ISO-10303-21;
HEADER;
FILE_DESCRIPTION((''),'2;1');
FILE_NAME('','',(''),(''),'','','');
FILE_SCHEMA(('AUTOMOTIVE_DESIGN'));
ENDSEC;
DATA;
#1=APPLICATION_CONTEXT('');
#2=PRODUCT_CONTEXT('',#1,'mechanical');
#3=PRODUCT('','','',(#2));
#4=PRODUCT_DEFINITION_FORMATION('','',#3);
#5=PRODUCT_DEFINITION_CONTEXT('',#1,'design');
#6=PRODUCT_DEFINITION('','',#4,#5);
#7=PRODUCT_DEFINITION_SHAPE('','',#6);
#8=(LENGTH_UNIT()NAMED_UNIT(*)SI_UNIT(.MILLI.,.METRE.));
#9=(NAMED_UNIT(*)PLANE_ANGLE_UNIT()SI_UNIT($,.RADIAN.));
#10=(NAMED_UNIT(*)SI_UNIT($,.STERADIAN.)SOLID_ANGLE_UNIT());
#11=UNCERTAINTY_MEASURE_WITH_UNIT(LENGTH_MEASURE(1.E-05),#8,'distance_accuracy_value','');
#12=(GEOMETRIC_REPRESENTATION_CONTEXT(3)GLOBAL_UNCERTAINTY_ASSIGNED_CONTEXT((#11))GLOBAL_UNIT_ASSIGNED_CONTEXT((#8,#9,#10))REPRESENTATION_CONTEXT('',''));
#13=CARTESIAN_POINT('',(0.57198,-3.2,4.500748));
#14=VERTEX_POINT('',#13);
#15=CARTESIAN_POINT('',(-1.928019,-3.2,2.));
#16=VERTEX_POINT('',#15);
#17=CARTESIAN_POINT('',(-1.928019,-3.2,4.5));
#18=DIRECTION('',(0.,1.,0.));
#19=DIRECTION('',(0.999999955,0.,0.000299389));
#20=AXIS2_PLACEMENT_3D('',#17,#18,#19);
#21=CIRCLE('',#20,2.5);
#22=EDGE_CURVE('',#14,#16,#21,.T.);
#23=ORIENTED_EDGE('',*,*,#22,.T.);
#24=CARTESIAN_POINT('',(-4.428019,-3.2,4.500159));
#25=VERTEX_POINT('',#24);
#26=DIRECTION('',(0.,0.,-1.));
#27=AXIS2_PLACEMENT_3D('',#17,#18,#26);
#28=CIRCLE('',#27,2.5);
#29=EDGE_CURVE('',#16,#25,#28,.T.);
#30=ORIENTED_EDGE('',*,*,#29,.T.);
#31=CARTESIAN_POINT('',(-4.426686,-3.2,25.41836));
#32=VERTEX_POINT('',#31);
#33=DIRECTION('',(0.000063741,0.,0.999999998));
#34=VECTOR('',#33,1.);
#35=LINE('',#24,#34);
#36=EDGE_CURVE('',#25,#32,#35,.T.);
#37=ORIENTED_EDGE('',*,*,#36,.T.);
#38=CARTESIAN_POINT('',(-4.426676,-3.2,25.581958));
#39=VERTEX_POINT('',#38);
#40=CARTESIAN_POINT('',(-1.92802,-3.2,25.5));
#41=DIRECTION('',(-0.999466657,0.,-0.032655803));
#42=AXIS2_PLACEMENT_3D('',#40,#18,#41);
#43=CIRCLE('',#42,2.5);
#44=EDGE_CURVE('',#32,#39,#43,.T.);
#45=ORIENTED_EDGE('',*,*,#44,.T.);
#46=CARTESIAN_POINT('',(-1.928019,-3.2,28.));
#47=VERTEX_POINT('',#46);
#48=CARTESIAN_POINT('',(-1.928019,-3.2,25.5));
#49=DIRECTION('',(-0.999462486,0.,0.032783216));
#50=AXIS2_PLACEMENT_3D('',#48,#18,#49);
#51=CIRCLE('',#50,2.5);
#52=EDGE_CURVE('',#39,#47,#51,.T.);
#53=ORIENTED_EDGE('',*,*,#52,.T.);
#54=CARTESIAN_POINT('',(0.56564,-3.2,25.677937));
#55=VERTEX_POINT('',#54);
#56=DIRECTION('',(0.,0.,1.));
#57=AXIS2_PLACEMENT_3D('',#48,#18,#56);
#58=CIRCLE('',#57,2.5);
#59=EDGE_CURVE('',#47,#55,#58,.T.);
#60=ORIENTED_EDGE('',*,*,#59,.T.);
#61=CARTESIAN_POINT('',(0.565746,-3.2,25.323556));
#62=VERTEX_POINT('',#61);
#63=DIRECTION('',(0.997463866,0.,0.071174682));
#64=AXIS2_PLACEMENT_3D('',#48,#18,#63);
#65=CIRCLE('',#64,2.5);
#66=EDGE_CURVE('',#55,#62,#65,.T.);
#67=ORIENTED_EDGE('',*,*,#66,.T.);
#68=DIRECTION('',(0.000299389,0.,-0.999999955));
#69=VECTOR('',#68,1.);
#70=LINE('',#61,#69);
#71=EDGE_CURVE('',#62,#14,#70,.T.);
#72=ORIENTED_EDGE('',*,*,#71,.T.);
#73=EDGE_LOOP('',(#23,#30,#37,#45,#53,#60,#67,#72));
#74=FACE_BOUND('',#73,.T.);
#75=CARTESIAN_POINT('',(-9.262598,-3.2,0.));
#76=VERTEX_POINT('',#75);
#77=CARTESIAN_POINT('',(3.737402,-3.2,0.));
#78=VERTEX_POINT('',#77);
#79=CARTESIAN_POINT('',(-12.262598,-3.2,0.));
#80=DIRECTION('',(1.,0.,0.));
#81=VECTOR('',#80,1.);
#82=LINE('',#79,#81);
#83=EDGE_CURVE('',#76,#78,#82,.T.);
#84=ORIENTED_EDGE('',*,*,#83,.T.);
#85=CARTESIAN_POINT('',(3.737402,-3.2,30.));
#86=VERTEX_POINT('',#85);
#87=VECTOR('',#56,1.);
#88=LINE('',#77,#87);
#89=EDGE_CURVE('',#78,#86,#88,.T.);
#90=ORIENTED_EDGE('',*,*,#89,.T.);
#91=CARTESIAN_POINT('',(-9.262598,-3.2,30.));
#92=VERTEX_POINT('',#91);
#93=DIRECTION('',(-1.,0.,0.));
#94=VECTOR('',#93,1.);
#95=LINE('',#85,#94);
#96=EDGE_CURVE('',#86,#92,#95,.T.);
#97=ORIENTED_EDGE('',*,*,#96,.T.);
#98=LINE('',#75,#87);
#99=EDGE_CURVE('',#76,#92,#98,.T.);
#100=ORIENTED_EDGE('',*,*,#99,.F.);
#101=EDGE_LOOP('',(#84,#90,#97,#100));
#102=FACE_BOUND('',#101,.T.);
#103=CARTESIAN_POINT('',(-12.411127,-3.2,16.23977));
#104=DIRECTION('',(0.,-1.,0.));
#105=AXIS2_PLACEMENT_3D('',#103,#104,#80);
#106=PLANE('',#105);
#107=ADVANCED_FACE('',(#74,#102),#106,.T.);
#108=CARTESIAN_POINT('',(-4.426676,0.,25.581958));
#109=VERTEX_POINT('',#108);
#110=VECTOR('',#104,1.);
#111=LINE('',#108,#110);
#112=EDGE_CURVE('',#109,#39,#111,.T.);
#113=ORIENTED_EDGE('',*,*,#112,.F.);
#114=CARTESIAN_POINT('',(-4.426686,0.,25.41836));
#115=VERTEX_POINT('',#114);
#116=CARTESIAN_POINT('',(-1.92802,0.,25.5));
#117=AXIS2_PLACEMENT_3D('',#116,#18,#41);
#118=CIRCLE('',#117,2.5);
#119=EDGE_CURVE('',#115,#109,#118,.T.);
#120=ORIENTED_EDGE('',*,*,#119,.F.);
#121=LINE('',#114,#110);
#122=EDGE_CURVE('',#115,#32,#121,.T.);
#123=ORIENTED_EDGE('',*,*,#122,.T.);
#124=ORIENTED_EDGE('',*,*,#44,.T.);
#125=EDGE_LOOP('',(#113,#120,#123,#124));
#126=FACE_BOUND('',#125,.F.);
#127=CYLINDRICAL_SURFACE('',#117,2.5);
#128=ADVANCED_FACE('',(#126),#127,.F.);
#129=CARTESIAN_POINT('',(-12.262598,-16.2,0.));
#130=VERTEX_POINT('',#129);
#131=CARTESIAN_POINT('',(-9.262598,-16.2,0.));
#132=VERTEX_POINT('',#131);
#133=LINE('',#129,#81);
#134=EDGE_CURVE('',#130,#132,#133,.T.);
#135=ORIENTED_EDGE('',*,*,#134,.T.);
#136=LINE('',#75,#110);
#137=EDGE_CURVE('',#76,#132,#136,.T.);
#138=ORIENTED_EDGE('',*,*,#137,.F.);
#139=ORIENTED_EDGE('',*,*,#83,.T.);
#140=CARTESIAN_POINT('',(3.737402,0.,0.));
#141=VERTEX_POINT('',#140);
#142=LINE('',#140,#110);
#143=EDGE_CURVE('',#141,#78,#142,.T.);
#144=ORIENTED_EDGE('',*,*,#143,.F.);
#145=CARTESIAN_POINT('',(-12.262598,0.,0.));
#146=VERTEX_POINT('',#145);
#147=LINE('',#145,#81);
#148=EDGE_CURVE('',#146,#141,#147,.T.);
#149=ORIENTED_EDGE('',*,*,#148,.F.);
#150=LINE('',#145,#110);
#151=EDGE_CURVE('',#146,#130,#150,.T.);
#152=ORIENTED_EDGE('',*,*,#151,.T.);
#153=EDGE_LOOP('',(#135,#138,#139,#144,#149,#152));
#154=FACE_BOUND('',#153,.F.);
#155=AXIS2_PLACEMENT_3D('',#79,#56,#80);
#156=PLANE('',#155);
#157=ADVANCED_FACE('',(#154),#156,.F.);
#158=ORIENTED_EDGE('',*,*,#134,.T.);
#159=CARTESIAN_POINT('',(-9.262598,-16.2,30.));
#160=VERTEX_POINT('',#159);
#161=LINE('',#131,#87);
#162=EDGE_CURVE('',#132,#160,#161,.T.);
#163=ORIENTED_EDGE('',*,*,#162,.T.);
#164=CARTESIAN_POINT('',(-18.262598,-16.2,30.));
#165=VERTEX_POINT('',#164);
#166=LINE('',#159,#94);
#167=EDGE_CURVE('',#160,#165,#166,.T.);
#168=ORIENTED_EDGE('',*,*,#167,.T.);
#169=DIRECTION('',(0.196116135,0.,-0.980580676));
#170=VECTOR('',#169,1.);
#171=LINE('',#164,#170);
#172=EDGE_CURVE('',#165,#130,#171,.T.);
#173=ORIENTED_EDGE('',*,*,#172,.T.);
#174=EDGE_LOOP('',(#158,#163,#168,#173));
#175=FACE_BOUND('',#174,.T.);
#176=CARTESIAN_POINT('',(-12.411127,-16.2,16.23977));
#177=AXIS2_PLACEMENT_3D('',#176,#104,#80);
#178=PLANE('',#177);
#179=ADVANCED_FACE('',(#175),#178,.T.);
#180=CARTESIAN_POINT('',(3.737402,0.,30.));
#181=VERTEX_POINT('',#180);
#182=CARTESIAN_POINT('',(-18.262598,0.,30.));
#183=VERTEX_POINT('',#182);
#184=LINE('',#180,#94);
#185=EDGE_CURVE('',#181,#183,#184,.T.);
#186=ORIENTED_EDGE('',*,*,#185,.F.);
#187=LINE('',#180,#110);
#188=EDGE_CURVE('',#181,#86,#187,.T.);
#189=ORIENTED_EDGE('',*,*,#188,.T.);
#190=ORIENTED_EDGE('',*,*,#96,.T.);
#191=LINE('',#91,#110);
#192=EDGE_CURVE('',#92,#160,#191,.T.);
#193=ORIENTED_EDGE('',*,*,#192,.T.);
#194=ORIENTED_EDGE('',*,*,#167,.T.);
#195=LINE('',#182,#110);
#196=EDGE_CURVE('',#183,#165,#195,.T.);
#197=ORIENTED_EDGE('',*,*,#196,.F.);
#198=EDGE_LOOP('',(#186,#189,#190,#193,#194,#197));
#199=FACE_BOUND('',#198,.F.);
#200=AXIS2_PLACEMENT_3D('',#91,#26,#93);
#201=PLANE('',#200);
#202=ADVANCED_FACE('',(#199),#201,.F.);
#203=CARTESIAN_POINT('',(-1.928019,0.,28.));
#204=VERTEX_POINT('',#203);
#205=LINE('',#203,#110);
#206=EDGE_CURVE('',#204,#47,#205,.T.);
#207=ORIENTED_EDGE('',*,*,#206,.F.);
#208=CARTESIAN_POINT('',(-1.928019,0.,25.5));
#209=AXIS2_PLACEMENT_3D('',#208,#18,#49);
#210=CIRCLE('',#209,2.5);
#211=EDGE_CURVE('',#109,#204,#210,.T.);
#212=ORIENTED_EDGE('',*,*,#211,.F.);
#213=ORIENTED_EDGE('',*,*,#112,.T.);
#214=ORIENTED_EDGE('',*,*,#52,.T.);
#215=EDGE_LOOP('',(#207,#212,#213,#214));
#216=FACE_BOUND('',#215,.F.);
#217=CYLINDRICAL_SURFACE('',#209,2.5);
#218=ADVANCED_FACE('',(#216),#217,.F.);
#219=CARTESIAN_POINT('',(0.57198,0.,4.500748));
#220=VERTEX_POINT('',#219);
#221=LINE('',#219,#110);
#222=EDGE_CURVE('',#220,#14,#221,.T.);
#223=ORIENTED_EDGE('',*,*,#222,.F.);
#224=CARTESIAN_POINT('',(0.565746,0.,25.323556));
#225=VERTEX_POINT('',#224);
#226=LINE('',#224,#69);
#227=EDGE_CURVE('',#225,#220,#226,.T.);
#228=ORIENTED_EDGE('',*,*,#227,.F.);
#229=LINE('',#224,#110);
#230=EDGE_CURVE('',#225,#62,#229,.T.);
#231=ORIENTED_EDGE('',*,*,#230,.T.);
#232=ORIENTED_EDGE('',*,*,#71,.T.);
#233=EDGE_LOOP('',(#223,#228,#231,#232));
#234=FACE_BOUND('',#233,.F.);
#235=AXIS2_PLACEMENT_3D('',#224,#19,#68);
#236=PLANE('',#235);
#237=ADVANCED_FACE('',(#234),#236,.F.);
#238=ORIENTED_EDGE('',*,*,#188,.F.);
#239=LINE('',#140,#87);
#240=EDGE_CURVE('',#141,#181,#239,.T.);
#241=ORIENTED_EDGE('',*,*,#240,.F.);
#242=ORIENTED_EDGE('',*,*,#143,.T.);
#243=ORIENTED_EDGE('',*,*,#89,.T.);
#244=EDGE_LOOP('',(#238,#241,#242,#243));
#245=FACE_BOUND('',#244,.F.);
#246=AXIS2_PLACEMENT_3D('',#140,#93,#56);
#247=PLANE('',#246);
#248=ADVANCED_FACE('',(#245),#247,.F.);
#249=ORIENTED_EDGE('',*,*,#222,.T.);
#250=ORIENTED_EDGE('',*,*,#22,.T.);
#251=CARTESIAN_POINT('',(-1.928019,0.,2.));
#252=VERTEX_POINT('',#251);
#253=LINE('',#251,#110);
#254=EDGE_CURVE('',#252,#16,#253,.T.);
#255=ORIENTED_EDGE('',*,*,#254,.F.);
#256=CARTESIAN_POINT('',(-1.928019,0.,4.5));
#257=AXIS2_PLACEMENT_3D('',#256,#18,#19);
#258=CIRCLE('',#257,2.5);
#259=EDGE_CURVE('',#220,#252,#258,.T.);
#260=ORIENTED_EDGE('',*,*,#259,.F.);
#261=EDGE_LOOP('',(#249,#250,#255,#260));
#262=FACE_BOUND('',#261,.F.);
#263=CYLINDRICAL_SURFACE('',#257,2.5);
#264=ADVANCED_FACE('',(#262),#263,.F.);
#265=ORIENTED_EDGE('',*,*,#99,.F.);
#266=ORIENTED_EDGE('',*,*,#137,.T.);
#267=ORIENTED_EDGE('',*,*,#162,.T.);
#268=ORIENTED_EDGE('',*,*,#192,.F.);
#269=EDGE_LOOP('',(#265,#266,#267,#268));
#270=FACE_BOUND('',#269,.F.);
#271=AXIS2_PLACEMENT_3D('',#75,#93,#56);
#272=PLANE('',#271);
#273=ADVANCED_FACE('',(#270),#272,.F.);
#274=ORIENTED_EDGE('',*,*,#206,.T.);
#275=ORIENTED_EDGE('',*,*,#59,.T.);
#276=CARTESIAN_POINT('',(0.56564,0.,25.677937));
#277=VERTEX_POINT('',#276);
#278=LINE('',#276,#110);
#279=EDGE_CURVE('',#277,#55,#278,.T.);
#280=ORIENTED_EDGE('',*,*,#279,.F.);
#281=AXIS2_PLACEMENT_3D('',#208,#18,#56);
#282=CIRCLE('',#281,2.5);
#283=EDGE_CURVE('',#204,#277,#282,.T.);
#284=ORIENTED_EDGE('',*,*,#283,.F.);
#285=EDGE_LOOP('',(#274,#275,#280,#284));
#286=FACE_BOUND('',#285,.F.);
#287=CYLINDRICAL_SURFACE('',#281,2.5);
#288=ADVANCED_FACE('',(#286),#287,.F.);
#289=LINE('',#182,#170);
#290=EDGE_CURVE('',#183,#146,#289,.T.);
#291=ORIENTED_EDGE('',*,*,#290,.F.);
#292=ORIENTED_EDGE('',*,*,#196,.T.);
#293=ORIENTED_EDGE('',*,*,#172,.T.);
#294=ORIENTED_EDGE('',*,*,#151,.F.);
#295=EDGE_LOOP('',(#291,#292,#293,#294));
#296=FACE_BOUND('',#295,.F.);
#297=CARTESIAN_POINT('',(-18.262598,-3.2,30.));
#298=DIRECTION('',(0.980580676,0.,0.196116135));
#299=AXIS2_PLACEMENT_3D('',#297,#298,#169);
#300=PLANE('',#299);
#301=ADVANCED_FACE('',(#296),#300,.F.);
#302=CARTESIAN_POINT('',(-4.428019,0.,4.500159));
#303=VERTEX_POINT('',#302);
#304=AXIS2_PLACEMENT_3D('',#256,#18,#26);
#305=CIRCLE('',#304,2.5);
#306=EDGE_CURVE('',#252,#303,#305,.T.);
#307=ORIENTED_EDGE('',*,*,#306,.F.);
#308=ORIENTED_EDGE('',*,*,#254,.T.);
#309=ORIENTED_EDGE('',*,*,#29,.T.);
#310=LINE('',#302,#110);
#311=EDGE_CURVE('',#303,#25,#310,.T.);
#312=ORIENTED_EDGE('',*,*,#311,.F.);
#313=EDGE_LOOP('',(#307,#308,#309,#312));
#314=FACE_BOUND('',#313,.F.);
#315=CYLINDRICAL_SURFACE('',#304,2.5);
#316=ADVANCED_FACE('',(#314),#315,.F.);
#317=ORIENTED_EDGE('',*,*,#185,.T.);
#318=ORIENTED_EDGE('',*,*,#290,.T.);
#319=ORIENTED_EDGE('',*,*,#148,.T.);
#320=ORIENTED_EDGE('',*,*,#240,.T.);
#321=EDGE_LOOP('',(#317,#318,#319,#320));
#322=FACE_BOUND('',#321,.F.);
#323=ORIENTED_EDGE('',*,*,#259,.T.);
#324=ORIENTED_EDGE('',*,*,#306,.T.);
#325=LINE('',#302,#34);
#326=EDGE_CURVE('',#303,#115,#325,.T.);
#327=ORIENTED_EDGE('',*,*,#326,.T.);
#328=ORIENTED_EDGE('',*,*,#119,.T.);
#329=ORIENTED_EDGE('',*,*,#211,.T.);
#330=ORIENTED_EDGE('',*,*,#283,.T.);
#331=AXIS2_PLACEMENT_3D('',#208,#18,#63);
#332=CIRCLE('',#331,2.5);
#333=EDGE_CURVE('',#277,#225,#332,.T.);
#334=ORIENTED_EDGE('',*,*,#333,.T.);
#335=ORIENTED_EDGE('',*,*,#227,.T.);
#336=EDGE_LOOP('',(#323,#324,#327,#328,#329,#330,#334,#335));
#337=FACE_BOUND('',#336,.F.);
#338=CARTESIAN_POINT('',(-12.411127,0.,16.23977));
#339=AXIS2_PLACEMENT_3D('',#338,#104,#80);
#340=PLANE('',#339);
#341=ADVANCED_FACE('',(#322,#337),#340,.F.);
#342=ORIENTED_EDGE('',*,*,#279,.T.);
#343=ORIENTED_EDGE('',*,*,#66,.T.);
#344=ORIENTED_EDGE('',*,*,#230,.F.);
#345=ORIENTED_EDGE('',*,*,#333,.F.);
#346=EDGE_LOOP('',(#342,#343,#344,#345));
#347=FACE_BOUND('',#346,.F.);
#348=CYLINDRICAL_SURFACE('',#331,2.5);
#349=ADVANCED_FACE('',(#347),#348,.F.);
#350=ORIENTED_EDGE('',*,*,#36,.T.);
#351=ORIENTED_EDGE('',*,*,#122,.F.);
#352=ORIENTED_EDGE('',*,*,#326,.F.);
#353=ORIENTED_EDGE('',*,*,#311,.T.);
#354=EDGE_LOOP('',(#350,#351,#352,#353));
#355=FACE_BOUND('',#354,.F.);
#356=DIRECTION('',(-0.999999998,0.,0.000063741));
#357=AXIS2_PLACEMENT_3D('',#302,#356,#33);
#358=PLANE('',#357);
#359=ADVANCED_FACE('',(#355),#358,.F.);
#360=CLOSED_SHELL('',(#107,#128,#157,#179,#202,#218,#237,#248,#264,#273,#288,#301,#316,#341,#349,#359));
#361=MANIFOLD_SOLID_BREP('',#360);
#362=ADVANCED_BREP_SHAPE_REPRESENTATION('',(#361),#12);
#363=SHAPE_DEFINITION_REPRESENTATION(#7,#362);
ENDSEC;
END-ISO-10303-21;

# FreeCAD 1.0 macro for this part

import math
import FreeCAD as App
import Part
import Sketcher

V = App.Vector
Q = App.Units.Quantity


def add_polygon(sketch, points):
    """Adds a closed chain of lines whose ends are joined by coincident constraints."""
    first, n = sketch.GeometryCount, len(points)
    for a, b in zip(points, points[1:] + points[:1]):
        sketch.addGeometry(Part.LineSegment(App.Vector(*a, 0), App.Vector(*b, 0)), False)
    for i in range(n):
        sketch.addConstraint(Sketcher.Constraint("Coincident", first + i, 2, first + (i + 1) % n, 1))

doc = App.newDocument("Part")
body = doc.addObject("PartDesign::Body", "Body")

# Sketch on XZ plane
sketch1 = body.newObject("Sketcher::SketchObject", "Sketch")
sketch1.AttachmentSupport = (doc.getObject("XZ_Plane"), [""])
sketch1.MapMode = "FlatFace"
add_polygon(sketch1, [(-12.262598, 0), (3.737402, 0), (3.737402, 30), (-18.262598, 30)])  # lines 0-3
sketch1.addGeometry(Part.ArcOfCircle(Part.Circle(V(-1.928019, 4.5, 0), V(0, 0, 1), 2.5), math.radians(179.996348), math.radians(270)), False)  # 4
sketch1.addGeometry(Part.LineSegment(V(-4.428019, 4.500159, 0), V(-4.426686, 25.41836, 0)), False)  # 5
sketch1.addGeometry(Part.ArcOfCircle(Part.Circle(V(-1.92802, 25.5, 0), V(0, 0, 1), 2.5), math.radians(178.121323), math.radians(181.871372)), False)  # 6
sketch1.addGeometry(Part.ArcOfCircle(Part.Circle(V(-1.928019, 25.5, 0), V(0, 0, 1), 2.5), math.radians(90), math.radians(178.121323)), False)  # 7
sketch1.addGeometry(Part.ArcOfCircle(Part.Circle(V(-1.928019, 25.5, 0), V(0, 0, 1), 2.5), math.radians(4.08146), math.radians(90)), False)  # 8
sketch1.addGeometry(Part.ArcOfCircle(Part.Circle(V(-1.928019, 25.5, 0), V(0, 0, 1), 2.5), math.radians(-4.047152), math.radians(4.08146)), False)  # 9
sketch1.addGeometry(Part.LineSegment(V(0.565746, 25.323556, 0), V(0.57198, 4.500748, 0)), False)  # 10
sketch1.addGeometry(Part.ArcOfCircle(Part.Circle(V(-1.928019, 4.5, 0), V(0, 0, 1), 2.5), math.radians(-90), math.radians(0.017154)), False)  # 11
sketch1.addConstraint([
    Sketcher.Constraint("Tangent", 4, 1, 5, 1),
    Sketcher.Constraint("Coincident", 5, 2, 6, 2),
    Sketcher.Constraint("Tangent", 6, 1, 7, 2),
    Sketcher.Constraint("Tangent", 7, 1, 8, 2),
    Sketcher.Constraint("Tangent", 8, 1, 9, 2),
    Sketcher.Constraint("Coincident", 9, 1, 10, 1),
    Sketcher.Constraint("Tangent", 10, 2, 11, 2),
    Sketcher.Constraint("Tangent", 11, 1, 4, 2),
    Sketcher.Constraint("Horizontal", 0),
    Sketcher.Constraint("Vertical", 1),
    Sketcher.Constraint("Horizontal", 2),
    Sketcher.Constraint("Coincident", 8, 3, 6, 3),
    Sketcher.Constraint("Equal", 4, 6),
    Sketcher.Constraint("Equal", 8, 9),
    Sketcher.Constraint("Equal", 9, 11),
    Sketcher.Constraint("PointOnObject", 0, 2, -1),
    Sketcher.Constraint("Vertical", 4, 3, 6, 3),
    Sketcher.Constraint("Vertical", 11, 3, 7, 1),
    Sketcher.Constraint("Vertical", 7, 1, 11, 1),
    Sketcher.Constraint("Radius", 4, Q("2.5 mm")),
    Sketcher.Constraint("DistanceX", 0, 1, 0, 2, Q("16 mm")),
    Sketcher.Constraint("DistanceX", 2, 2, 2, 1, Q("22 mm")),
    Sketcher.Constraint("DistanceY", 1, 1, 1, 2, Q("30 mm")),
    Sketcher.Constraint("DistanceY", -1, 1, 7, 1, Q("28 mm")),
    Sketcher.Constraint("DistanceY", -1, 1, 11, 1, Q("2 mm")),
    Sketcher.Constraint("Distance", 5, Q("20.918201 mm")),
    Sketcher.Constraint("Distance", 10, Q("20.822809 mm")),
    Sketcher.Constraint("DistanceX", 4, 3, -1, 1, Q("1.928019 mm")),
    Sketcher.Constraint("DistanceY", -1, 1, 6, 1, Q("25.581958 mm")),
    Sketcher.Constraint("DistanceX", -1, 1, 8, 1, Q("0.56564 mm")),
    Sketcher.Constraint("DistanceX", 4, 3, 0, 2, Q("5.665422 mm")),
])
pad1 = body.newObject("PartDesign::Pad", "Pad")
pad1.Profile = sketch1
pad1.Length = 3.2

# Sketch on XZ plane
sketch2 = body.newObject("Sketcher::SketchObject", "Sketch001")
sketch2.AttachmentSupport = (doc.getObject("XZ_Plane"), [""])
sketch2.MapMode = "FlatFace"
sketch2.AttachmentOffset = App.Placement(V(0, 0, 3.2), App.Rotation())
add_polygon(sketch2, [(-9.262598, 30), (-18.262598, 30), (-12.262598, 0), (-9.262598, 0)])  # lines 0-3
sketch2.addConstraint([
    Sketcher.Constraint("Horizontal", 0),
    Sketcher.Constraint("Horizontal", 2),
    Sketcher.Constraint("Vertical", 3),
    Sketcher.Constraint("PointOnObject", 1, 2, -1),
    Sketcher.Constraint("DistanceX", 0, 2, 0, 1, Q("9 mm")),
    Sketcher.Constraint("DistanceX", 2, 1, 2, 2, Q("3 mm")),
    Sketcher.Constraint("DistanceY", 3, 1, 3, 2, Q("30 mm")),
    Sketcher.Constraint("DistanceX", 0, 2, -1, 1, Q("18.262598 mm")),
])
pad2 = body.newObject("PartDesign::Pad", "Pad001")
pad2.Profile = sketch2
pad2.Length = 13

doc.recompute()
